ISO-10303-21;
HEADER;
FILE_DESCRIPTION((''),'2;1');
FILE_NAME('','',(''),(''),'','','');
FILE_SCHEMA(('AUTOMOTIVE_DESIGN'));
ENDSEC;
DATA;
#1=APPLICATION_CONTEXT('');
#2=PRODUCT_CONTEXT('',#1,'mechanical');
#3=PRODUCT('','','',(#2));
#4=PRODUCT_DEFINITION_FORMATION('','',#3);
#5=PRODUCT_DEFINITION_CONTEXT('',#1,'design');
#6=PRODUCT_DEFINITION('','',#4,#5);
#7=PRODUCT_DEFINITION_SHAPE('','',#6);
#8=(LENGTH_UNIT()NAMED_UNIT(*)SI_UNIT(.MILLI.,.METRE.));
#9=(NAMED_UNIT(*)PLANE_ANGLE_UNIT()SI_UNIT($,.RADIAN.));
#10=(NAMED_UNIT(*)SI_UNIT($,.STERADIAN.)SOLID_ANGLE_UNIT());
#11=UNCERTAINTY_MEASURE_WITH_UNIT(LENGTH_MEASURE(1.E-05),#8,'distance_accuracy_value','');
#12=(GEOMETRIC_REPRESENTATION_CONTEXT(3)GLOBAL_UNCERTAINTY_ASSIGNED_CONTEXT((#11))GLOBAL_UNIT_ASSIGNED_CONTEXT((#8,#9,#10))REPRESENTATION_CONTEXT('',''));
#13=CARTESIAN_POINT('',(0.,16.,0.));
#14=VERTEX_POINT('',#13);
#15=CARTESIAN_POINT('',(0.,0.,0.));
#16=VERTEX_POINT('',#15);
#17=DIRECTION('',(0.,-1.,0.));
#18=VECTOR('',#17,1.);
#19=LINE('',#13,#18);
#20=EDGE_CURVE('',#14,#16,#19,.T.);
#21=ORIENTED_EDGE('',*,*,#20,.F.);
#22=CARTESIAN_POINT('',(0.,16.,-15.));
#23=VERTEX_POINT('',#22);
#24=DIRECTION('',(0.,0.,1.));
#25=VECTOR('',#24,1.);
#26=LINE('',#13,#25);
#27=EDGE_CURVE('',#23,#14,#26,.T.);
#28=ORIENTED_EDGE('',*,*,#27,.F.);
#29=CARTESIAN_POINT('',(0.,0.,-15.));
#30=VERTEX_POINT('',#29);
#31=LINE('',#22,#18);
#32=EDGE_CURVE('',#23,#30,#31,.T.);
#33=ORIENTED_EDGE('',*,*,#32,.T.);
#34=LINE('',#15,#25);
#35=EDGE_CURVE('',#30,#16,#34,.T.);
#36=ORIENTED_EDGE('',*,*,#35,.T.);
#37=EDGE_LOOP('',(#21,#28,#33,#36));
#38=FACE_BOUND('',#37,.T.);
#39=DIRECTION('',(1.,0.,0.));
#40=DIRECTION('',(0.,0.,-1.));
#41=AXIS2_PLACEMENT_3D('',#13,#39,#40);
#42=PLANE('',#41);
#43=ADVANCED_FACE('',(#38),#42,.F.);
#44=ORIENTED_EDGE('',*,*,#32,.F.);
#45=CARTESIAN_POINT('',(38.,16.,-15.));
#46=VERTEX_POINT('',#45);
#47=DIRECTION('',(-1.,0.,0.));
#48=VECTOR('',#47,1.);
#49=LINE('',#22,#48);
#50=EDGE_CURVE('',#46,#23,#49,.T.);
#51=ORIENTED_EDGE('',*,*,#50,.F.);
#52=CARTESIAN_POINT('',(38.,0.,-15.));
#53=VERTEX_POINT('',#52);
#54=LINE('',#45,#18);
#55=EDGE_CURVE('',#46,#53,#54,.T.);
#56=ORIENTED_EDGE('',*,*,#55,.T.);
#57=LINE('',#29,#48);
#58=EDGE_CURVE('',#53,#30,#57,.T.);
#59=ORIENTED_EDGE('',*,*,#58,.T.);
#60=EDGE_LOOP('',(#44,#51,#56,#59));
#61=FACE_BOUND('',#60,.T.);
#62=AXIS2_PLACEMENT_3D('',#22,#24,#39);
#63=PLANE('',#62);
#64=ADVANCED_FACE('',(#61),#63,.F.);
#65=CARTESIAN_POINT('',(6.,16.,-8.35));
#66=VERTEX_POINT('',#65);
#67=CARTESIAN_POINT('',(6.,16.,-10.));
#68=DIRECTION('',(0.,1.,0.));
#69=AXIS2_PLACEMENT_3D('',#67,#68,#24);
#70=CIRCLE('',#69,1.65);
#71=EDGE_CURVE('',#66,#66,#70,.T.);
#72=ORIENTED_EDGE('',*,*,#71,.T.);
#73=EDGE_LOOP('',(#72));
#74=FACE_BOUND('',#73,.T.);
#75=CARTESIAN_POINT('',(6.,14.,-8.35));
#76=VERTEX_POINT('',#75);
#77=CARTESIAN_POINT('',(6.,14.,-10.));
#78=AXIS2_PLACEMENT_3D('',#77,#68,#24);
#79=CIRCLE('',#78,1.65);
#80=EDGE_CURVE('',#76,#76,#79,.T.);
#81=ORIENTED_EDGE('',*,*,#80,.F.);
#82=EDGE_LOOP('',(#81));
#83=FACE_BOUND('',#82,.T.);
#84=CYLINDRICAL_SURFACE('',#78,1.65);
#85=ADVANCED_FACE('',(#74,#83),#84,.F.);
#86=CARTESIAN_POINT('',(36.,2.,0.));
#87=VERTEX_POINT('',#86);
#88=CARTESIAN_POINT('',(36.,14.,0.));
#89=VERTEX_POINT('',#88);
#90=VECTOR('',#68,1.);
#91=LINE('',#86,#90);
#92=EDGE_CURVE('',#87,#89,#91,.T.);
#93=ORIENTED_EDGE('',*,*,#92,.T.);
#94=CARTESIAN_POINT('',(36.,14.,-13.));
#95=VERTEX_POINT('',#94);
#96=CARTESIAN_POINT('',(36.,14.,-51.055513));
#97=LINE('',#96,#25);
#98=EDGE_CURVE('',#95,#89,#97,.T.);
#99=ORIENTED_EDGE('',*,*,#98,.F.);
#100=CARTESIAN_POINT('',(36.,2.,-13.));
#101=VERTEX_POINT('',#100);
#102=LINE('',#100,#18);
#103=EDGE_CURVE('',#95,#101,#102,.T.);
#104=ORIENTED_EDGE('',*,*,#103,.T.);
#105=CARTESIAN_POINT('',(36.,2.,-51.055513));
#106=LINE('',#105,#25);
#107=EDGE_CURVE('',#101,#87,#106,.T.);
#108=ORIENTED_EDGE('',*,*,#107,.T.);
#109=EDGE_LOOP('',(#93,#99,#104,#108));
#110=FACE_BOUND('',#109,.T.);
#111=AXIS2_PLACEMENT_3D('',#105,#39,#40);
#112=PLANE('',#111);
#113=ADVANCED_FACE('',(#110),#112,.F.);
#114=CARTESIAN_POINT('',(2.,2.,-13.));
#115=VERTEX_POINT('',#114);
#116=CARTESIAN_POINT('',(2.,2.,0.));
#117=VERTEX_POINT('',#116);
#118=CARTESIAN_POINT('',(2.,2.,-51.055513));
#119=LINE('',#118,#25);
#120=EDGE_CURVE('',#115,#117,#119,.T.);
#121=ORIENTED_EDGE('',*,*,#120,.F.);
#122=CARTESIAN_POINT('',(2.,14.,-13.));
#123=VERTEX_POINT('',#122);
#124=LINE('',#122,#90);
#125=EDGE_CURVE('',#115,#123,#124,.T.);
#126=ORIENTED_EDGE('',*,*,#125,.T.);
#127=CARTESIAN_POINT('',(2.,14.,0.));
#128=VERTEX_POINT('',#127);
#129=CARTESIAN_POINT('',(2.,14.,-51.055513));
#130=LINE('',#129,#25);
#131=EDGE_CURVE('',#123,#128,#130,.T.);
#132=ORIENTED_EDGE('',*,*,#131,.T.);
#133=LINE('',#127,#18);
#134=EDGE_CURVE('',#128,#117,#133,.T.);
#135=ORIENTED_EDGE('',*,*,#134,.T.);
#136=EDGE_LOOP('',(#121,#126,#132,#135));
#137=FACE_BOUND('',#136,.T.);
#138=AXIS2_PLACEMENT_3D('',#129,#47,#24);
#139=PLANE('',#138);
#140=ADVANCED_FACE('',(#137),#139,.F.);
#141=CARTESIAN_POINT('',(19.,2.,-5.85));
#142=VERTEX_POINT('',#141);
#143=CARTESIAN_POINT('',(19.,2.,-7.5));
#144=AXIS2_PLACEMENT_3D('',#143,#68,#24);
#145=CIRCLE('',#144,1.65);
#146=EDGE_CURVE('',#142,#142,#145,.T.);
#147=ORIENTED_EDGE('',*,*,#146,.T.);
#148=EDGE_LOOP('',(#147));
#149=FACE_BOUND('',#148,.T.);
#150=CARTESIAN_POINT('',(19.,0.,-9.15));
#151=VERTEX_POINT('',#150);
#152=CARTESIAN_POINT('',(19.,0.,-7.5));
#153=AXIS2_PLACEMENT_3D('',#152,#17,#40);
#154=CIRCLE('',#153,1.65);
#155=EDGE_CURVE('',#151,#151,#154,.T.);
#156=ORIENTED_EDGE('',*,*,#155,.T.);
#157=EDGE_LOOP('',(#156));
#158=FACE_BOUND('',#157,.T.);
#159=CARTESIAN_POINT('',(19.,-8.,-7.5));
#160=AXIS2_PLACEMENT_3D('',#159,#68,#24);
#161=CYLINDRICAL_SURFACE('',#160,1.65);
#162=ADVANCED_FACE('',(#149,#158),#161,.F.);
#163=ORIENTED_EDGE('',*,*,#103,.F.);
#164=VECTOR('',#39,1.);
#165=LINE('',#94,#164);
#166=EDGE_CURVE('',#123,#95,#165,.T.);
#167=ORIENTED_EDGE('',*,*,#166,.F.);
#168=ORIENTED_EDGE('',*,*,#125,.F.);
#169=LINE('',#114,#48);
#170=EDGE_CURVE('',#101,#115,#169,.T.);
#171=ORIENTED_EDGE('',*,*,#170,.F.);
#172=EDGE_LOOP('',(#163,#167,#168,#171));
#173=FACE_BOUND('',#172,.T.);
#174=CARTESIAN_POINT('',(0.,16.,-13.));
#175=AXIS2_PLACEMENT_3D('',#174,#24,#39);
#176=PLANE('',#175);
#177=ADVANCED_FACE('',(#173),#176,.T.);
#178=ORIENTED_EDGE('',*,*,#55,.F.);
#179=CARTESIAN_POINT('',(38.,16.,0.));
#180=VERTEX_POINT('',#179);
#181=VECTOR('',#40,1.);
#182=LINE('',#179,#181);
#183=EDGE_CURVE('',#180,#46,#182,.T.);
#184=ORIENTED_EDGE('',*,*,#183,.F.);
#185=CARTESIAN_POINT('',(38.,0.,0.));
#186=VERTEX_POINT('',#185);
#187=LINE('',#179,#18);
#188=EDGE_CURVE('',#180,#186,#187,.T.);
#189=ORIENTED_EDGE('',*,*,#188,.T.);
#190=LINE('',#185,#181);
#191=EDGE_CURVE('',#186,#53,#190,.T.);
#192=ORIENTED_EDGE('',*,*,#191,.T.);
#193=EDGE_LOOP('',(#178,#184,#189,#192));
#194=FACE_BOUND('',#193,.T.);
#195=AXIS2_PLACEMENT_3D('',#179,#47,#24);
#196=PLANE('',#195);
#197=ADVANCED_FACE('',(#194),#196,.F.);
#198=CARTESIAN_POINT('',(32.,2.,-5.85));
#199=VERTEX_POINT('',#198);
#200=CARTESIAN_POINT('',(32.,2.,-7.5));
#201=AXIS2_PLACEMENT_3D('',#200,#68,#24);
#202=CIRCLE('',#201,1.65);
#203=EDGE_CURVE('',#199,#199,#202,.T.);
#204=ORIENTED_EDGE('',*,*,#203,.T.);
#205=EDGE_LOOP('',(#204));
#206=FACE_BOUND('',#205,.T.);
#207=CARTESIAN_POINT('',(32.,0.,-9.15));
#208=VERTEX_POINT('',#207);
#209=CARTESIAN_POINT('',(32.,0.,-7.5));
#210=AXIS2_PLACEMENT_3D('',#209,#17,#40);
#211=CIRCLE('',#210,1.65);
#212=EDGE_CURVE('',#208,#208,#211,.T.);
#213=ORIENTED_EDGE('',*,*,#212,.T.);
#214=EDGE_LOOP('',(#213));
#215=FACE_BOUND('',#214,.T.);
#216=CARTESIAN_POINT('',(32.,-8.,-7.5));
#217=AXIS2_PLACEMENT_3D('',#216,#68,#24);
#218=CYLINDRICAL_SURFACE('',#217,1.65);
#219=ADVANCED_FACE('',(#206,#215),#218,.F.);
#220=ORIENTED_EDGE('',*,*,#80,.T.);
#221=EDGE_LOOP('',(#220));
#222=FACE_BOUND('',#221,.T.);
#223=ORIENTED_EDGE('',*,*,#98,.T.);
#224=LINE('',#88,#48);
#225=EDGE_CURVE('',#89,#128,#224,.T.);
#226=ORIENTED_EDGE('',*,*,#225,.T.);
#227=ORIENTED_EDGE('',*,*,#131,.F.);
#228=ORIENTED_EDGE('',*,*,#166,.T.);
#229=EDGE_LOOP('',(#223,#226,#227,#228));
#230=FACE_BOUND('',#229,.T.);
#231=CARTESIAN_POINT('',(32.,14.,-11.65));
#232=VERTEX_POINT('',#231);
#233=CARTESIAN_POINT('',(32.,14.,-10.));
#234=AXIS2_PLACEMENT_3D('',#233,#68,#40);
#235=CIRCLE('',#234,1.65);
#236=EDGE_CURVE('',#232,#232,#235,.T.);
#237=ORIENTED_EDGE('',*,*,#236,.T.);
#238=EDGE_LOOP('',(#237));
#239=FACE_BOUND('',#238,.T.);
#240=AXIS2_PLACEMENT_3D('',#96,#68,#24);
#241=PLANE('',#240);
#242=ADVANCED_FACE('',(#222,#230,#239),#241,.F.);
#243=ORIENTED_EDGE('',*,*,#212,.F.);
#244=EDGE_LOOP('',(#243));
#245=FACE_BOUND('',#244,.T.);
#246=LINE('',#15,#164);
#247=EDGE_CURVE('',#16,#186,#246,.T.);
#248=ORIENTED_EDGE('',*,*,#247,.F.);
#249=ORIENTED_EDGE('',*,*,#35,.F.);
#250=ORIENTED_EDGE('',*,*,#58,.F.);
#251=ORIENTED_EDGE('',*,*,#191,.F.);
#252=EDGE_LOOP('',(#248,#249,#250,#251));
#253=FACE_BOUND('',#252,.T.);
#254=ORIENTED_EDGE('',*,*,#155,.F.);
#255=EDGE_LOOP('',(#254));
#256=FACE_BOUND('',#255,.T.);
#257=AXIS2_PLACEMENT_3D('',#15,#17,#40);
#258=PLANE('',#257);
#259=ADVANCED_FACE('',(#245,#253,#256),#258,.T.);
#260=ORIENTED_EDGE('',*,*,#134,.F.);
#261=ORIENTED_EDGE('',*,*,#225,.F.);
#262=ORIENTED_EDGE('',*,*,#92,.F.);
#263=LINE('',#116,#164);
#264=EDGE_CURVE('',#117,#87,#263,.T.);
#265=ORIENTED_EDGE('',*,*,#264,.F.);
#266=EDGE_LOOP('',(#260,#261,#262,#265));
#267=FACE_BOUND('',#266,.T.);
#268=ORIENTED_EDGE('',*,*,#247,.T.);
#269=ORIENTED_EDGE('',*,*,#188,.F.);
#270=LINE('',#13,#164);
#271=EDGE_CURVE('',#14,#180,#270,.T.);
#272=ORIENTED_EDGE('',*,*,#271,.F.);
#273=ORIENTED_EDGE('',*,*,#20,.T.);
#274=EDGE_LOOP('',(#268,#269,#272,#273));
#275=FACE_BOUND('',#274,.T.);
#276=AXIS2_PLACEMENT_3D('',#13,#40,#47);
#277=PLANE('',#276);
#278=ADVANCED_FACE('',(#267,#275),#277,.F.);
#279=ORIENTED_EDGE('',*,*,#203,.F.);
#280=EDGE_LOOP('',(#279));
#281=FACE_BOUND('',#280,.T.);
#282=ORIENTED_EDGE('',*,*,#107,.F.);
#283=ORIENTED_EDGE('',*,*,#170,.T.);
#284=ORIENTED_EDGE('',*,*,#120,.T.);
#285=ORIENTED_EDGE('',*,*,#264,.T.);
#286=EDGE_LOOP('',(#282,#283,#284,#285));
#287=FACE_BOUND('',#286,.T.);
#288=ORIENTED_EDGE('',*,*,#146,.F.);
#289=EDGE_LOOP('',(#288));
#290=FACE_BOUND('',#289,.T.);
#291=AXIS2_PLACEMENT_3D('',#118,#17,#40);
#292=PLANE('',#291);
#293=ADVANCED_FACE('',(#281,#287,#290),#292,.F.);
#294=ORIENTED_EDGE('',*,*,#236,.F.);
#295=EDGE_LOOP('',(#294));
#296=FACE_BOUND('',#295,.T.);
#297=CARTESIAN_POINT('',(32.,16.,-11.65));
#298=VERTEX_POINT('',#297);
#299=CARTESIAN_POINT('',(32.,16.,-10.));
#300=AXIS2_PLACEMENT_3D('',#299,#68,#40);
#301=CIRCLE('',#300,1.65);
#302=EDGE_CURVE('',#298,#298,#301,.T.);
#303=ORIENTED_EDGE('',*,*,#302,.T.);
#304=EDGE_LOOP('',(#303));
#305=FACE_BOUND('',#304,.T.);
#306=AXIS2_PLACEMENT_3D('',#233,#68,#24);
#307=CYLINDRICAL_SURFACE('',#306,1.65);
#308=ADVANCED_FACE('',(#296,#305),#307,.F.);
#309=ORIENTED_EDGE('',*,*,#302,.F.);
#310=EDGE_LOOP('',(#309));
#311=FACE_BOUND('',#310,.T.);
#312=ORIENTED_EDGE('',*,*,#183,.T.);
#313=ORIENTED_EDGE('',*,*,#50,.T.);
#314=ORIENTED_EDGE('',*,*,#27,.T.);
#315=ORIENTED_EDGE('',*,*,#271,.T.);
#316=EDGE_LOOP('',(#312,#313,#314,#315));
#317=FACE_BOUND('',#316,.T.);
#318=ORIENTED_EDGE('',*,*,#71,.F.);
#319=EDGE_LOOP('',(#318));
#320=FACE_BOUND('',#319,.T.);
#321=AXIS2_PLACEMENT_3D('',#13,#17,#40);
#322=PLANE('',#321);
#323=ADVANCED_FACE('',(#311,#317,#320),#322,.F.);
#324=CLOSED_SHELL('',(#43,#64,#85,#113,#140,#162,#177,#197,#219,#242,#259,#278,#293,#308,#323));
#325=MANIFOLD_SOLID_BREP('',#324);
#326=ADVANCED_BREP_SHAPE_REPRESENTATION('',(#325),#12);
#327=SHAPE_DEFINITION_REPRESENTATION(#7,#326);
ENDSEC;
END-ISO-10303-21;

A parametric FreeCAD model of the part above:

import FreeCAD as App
import Part
import Sketcher
from FreeCAD import Vector
Q = App.Units.Quantity

doc = App.newDocument("Part")
body = doc.addObject("PartDesign::Body", "Body")

sketch1 = body.newObject("Sketcher::SketchObject", "Sketch")
sketch1.AttachmentSupport = (doc.getObject("XZ_Plane"), [""])
sketch1.MapMode = "FlatFace"
sketch1.addGeometry(Part.LineSegment(Vector(0, -15, 0), Vector(0, 0, 0)), False)
sketch1.addGeometry(Part.LineSegment(Vector(0, 0, 0), Vector(38, 0, 0)), False)
sketch1.addGeometry(Part.LineSegment(Vector(38, 0, 0), Vector(38, -15, 0)), False)
sketch1.addGeometry(Part.LineSegment(Vector(38, -15, 0), Vector(0, -15, 0)), False)
sketch1.addConstraint(Sketcher.Constraint("Coincident", 0, 2, 1, 1))
sketch1.addConstraint(Sketcher.Constraint("Coincident", 1, 2, 2, 1))
sketch1.addConstraint(Sketcher.Constraint("Coincident", 2, 2, 3, 1))
sketch1.addConstraint(Sketcher.Constraint("Coincident", 3, 2, 0, 1))
sketch1.addConstraint(Sketcher.Constraint("Vertical", 0))
sketch1.addConstraint(Sketcher.Constraint("Horizontal", 1))
sketch1.addConstraint(Sketcher.Constraint("Vertical", 2))
sketch1.addConstraint(Sketcher.Constraint("Horizontal", 3))
sketch1.addConstraint(Sketcher.Constraint("Coincident", 0, 2, -1, 1))
sketch1.addConstraint(Sketcher.Constraint("DistanceX", 1, 1, 1, 2, Q("38 mm")))
sketch1.addConstraint(Sketcher.Constraint("DistanceY", 0, 1, 0, 2, Q("15 mm")))
pad1 = body.newObject("PartDesign::Pad", "Pad")
pad1.Profile = sketch1
pad1.Length = 16
pad1.Reversed = True

sketch2 = body.newObject("Sketcher::SketchObject", "Sketch001")
sketch2.AttachmentSupport = (doc.getObject("XY_Plane"), [""])
sketch2.MapMode = "FlatFace"
sketch2.addGeometry(Part.LineSegment(Vector(2, 14, 0), Vector(2, 2, 0)), False)
sketch2.addGeometry(Part.LineSegment(Vector(2, 2, 0), Vector(36, 2, 0)), False)
sketch2.addGeometry(Part.LineSegment(Vector(36, 2, 0), Vector(36, 14, 0)), False)
sketch2.addGeometry(Part.LineSegment(Vector(36, 14, 0), Vector(2, 14, 0)), False)
sketch2.addConstraint(Sketcher.Constraint("Coincident", 0, 2, 1, 1))
sketch2.addConstraint(Sketcher.Constraint("Coincident", 1, 2, 2, 1))
sketch2.addConstraint(Sketcher.Constraint("Coincident", 2, 2, 3, 1))
sketch2.addConstraint(Sketcher.Constraint("Coincident", 3, 2, 0, 1))
sketch2.addConstraint(Sketcher.Constraint("Vertical", 0))
sketch2.addConstraint(Sketcher.Constraint("Horizontal", 1))
sketch2.addConstraint(Sketcher.Constraint("Vertical", 2))
sketch2.addConstraint(Sketcher.Constraint("Horizontal", 3))
sketch2.addConstraint(Sketcher.Constraint("DistanceX", 1, 1, 1, 2, Q("34 mm")))
sketch2.addConstraint(Sketcher.Constraint("DistanceY", 0, 2, 0, 1, Q("12 mm")))
sketch2.addConstraint(Sketcher.Constraint("DistanceX", -1, 1, 0, 2, Q("2 mm")))
sketch2.addConstraint(Sketcher.Constraint("DistanceY", -1, 1, 0, 2, Q("2 mm")))
pocket1 = body.newObject("PartDesign::Pocket", "Pocket")
pocket1.Profile = sketch2
pocket1.Length = 13

sketch3 = body.newObject("Sketcher::SketchObject", "Sketch002")
sketch3.AttachmentSupport = (doc.getObject("XZ_Plane"), [""])
sketch3.MapMode = "FlatFace"
sketch3.AttachmentOffset = App.Placement(Vector(0, 0, -16), App.Rotation())
sketch3.addGeometry(Part.Circle(Vector(6, -10, 0), Vector(0, 0, 1), 1.65), False)
sketch3.addGeometry(Part.Circle(Vector(32, -10, 0), Vector(0, 0, 1), 1.65), False)
sketch3.addConstraint(Sketcher.Constraint("Equal", 0, 1))
sketch3.addConstraint(Sketcher.Constraint("Horizontal", 0, 3, 1, 3))
sketch3.addConstraint(Sketcher.Constraint("Diameter", 0, Q("3.3 mm")))
sketch3.addConstraint(Sketcher.Constraint("DistanceX", -1, 1, 0, 3, Q("6 mm")))
sketch3.addConstraint(Sketcher.Constraint("DistanceY", 0, 3, -1, 1, Q("10 mm")))
sketch3.addConstraint(Sketcher.Constraint("DistanceX", -1, 1, 1, 3, Q("32 mm")))
pocket2 = body.newObject("PartDesign::Pocket", "Pocket001")
pocket2.Profile = sketch3
pocket2.Length = 2
pocket2.Reversed = True

sketch4 = body.newObject("Sketcher::SketchObject", "Sketch003")
sketch4.AttachmentSupport = (doc.getObject("XZ_Plane"), [""])
sketch4.MapMode = "FlatFace"
sketch4.AttachmentOffset = App.Placement(Vector(0, 0, -2), App.Rotation())
sketch4.addGeometry(Part.Circle(Vector(19, -7.5, 0), Vector(0, 0, 1), 1.65), False)
sketch4.addGeometry(Part.Circle(Vector(32, -7.5, 0), Vector(0, 0, 1), 1.65), False)
sketch4.addConstraint(Sketcher.Constraint("Equal", 0, 1))
sketch4.addConstraint(Sketcher.Constraint("Horizontal", 0, 3, 1, 3))
sketch4.addConstraint(Sketcher.Constraint("Diameter", 0, Q("3.3 mm")))
sketch4.addConstraint(Sketcher.Constraint("DistanceX", -1, 1, 0, 3, Q("19 mm")))
sketch4.addConstraint(Sketcher.Constraint("DistanceX", -1, 1, 1, 3, Q("32 mm")))
sketch4.addConstraint(Sketcher.Constraint("DistanceY", 0, 3, -1, 1, Q("7.5 mm")))
pocket3 = body.newObject("PartDesign::Pocket", "Pocket002")
pocket3.Profile = sketch4
pocket3.Length = 10
pocket3.Reversed = True

doc.recompute()
